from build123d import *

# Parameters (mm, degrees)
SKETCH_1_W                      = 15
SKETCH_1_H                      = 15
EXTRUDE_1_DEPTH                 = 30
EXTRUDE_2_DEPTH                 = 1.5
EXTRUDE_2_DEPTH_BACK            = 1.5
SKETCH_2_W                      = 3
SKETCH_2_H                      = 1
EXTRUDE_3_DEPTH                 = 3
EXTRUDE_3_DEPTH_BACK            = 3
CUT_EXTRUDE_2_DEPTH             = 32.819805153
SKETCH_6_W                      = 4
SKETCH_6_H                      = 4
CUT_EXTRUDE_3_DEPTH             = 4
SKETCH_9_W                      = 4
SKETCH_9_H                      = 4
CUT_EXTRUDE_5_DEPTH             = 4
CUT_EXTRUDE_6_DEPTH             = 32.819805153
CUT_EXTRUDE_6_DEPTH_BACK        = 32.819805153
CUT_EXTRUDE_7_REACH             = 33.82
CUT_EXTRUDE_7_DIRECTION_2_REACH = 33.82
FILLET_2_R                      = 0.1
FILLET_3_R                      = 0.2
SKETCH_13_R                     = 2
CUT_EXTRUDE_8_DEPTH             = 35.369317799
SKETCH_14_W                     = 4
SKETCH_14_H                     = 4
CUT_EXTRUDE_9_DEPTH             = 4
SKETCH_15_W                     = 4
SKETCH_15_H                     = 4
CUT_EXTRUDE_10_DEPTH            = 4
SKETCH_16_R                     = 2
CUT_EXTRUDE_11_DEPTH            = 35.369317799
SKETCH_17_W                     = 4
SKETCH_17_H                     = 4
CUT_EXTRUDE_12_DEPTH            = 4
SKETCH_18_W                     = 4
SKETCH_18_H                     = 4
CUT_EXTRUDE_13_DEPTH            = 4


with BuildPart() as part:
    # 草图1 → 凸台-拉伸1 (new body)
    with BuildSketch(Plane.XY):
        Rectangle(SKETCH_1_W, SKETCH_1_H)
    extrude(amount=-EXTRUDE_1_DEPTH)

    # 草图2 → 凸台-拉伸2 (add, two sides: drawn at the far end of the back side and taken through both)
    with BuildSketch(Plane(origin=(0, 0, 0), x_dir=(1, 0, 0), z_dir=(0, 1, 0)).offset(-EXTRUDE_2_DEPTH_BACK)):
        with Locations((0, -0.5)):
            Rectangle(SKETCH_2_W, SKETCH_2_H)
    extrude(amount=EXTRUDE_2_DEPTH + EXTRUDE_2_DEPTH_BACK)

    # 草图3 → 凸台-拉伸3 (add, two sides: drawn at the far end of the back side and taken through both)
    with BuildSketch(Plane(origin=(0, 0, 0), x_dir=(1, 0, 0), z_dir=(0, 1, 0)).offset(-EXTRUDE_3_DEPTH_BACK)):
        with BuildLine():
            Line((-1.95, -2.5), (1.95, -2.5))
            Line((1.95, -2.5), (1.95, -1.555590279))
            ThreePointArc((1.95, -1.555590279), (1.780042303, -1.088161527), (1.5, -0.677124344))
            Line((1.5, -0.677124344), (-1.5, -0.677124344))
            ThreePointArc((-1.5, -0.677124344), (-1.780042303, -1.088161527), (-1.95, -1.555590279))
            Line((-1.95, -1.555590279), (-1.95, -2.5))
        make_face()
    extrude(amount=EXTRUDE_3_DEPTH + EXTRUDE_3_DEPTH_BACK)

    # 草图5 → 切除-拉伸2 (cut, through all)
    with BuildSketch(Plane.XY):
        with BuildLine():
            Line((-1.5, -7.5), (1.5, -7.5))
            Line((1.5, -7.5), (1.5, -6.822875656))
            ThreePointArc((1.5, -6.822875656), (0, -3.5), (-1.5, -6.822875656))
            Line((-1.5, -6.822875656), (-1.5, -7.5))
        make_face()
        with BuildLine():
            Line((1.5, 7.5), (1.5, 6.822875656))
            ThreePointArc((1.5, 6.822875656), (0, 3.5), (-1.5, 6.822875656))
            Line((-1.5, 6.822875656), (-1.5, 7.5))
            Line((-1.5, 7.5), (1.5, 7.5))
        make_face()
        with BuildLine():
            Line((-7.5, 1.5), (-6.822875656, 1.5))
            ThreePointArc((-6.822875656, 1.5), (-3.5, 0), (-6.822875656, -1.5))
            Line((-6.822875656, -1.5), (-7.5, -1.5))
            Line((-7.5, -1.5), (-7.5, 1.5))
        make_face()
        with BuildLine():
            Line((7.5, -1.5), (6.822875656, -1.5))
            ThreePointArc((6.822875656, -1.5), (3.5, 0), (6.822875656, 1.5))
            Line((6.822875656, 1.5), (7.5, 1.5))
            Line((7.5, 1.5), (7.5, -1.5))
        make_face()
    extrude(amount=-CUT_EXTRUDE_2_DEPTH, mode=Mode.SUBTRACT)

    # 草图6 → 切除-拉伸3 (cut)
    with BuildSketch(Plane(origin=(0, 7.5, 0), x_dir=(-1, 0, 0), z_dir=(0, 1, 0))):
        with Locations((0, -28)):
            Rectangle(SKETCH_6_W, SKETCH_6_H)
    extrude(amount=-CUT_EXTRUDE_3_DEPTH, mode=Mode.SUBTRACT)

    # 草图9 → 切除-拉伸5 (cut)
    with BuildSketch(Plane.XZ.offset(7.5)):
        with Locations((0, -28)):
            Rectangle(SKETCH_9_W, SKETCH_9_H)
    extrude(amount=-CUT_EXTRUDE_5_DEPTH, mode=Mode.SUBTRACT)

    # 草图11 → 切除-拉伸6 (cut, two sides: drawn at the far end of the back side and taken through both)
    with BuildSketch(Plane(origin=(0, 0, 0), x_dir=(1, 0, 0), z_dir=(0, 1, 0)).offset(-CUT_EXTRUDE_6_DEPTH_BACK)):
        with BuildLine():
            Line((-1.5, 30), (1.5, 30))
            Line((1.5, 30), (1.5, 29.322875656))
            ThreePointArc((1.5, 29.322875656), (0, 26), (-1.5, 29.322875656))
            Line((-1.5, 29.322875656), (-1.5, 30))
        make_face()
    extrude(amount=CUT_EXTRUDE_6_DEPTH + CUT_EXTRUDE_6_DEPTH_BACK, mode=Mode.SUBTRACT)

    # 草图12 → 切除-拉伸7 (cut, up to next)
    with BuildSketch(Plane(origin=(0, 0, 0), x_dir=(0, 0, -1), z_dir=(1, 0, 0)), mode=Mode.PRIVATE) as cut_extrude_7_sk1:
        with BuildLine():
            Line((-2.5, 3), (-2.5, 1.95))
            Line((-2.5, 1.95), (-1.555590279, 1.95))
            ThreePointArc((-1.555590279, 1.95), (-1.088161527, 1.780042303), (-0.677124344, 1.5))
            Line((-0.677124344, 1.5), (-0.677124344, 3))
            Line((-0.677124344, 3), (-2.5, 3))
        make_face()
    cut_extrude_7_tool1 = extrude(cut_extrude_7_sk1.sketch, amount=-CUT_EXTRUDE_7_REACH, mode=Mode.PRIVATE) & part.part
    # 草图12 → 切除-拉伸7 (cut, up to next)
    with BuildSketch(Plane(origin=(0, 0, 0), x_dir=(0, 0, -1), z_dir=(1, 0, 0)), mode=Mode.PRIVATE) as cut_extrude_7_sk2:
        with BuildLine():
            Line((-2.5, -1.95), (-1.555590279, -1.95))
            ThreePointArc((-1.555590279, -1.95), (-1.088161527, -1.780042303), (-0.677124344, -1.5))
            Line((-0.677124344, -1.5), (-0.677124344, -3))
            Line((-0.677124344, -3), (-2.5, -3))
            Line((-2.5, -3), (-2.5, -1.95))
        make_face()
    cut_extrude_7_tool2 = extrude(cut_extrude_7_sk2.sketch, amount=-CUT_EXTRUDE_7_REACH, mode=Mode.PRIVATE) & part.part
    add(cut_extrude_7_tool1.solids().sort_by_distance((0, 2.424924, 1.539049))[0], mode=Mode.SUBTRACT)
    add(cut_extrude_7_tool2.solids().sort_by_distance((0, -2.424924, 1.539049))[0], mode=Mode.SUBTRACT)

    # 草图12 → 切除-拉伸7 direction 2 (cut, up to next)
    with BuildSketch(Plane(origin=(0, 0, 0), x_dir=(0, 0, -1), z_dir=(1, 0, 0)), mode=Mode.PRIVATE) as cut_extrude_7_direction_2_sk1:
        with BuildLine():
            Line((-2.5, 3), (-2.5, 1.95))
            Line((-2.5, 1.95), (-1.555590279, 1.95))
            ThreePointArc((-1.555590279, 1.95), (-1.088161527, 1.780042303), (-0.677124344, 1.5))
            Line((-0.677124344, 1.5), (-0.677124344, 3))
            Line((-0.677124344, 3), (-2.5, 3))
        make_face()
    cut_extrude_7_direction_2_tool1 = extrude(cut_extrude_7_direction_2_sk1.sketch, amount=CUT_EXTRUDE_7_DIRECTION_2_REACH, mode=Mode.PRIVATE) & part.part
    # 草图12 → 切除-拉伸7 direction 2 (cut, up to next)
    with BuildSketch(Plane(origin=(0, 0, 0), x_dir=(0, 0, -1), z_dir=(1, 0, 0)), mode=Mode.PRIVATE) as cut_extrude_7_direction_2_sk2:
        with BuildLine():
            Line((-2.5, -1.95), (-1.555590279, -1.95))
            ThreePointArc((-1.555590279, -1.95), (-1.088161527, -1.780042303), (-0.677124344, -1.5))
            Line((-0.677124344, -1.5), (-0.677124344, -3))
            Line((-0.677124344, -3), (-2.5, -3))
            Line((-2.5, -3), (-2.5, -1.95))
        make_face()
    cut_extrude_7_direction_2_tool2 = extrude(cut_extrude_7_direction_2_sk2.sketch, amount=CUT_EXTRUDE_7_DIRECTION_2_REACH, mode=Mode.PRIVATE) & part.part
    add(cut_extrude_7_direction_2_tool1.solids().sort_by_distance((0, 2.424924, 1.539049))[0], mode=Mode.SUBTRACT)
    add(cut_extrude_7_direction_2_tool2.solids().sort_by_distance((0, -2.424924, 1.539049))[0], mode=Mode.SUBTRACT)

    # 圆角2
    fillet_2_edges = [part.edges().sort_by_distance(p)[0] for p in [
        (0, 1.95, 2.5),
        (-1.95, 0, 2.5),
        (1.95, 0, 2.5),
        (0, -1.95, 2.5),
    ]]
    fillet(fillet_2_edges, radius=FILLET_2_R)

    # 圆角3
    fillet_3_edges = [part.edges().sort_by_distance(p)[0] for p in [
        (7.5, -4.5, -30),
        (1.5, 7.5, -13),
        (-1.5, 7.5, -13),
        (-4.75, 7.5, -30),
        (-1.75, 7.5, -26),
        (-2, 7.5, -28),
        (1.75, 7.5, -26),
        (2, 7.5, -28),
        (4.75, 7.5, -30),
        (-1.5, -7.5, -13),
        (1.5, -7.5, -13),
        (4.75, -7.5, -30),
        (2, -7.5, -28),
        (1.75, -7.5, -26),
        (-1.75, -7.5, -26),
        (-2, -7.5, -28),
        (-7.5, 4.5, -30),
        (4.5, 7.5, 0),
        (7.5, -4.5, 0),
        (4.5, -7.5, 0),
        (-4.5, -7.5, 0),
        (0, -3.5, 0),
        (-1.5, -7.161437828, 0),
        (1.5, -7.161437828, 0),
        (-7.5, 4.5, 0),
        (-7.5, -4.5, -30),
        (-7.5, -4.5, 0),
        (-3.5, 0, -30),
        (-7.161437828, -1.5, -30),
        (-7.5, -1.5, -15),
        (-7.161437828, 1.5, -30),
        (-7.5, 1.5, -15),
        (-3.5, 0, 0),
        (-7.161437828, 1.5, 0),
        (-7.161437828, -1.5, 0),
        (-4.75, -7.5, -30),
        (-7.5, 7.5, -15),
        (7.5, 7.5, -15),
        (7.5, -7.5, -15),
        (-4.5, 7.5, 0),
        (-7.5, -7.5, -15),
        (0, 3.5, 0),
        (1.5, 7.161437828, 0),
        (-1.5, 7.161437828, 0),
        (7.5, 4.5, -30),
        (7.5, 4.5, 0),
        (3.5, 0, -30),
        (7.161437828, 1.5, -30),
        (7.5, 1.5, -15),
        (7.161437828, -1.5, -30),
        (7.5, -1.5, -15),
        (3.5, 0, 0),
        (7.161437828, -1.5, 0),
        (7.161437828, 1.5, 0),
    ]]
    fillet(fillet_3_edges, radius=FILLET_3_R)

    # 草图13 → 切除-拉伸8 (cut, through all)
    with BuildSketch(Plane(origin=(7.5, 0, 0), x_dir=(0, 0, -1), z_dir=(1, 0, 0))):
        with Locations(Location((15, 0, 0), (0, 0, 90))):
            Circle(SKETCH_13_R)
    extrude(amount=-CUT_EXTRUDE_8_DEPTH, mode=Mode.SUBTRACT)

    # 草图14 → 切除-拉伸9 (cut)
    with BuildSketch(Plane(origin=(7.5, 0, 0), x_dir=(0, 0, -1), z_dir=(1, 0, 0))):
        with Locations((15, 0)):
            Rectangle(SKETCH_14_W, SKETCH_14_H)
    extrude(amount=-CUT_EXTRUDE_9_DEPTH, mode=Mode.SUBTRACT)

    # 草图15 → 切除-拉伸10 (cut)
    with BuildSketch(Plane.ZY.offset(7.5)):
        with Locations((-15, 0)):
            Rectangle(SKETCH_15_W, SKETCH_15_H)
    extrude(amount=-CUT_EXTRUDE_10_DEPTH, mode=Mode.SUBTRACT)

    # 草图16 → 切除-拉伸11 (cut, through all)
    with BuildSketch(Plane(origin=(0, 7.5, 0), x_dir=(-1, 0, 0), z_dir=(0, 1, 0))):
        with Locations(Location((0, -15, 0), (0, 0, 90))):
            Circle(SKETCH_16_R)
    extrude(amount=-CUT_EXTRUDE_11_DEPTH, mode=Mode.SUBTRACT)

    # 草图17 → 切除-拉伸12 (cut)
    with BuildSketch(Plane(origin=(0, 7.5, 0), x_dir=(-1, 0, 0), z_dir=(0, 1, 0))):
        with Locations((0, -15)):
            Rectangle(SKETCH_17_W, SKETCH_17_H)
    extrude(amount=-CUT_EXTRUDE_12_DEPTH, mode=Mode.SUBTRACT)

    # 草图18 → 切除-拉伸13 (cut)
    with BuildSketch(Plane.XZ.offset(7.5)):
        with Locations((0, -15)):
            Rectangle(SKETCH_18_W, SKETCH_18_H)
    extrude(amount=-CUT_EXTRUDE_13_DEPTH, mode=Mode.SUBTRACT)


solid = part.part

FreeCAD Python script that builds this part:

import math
import FreeCAD as App
import Part
import Sketcher

V = App.Vector
Q = App.Units.Quantity


def edges_at(feature, points):
    """Names of the edges that pass closest to the given points."""
    edges = feature.Shape.Edges
    near = lambda p: min(range(len(edges)), key=lambda i: edges[i].distToShape(Part.Vertex(*p))[0])
    return sorted({f"Edge{near(p) + 1}" for p in points})

doc = App.newDocument("Part")
body = doc.addObject("PartDesign::Body", "Body")

sketch1 = body.newObject("Sketcher::SketchObject", "Sketch")
sketch1.AttachmentSupport = (doc.getObject("XY_Plane"), [""])
sketch1.MapMode = "FlatFace"
sketch1.addGeometry([
    Part.LineSegment(V(-8, 8, 0), V(-8, -8, 0)),
    Part.LineSegment(V(-8, -8, 0), V(8, -8, 0)),
    Part.LineSegment(V(8, -8, 0), V(8, 8, 0)),
    Part.LineSegment(V(8, 8, 0), V(-8, 8, 0)),
], False)
sketch1.addConstraint([
    Sketcher.Constraint("Coincident", 0, 2, 1, 1),
    Sketcher.Constraint("Coincident", 1, 2, 2, 1),
    Sketcher.Constraint("Coincident", 2, 2, 3, 1),
    Sketcher.Constraint("Coincident", 3, 2, 0, 1),
    Sketcher.Constraint("Vertical", 0),
    Sketcher.Constraint("Horizontal", 1),
    Sketcher.Constraint("Vertical", 2),
    Sketcher.Constraint("Horizontal", 3),
    Sketcher.Constraint("Symmetric", 0, 2, 2, 2, -1, 1),
    Sketcher.Constraint("Equal", 3, 0),
    Sketcher.Constraint("DistanceX", 1, 1, 1, 2, Q("15 mm")),
])
pad1 = body.newObject("PartDesign::Pad", "Pad")
pad1.Profile = sketch1
pad1.Length = 30
pad1.Reversed = True

sketch2 = body.newObject("Sketcher::SketchObject", "Sketch001")
sketch2.AttachmentSupport = (doc.getObject("XZ_Plane"), [""])
sketch2.MapMode = "FlatFace"
sketch2.addGeometry([
    Part.LineSegment(V(-1.5, 0, 0), V(-1.5, 1, 0)),
    Part.LineSegment(V(-1.5, 1, 0), V(1.5, 1, 0)),
    Part.LineSegment(V(1.5, 1, 0), V(1.5, 0, 0)),
    Part.LineSegment(V(1.5, 0, 0), V(-1.5, 0, 0)),
], False)
sketch2.addConstraint([
    Sketcher.Constraint("Coincident", 0, 2, 1, 1),
    Sketcher.Constraint("Coincident", 1, 2, 2, 1),
    Sketcher.Constraint("Coincident", 2, 2, 3, 1),
    Sketcher.Constraint("Coincident", 3, 2, 0, 1),
    Sketcher.Constraint("Vertical", 0),
    Sketcher.Constraint("Horizontal", 1),
    Sketcher.Constraint("Vertical", 2),
    Sketcher.Constraint("Horizontal", 3),
    Sketcher.Constraint("Symmetric", 2, 2, 3, 2, -1, 1),
    Sketcher.Constraint("DistanceX", 1, 1, 1, 2, Q("3 mm")),
    Sketcher.Constraint("DistanceY", 0, 1, 0, 2, Q("1 mm")),
])
pad2 = body.newObject("PartDesign::Pad", "Pad001")
pad2.Profile = sketch2
pad2.Type = "TwoLengths"
pad2.Length = 1.5
pad2.Length2 = 1.5
pad2.Reversed = True

sketch3 = body.newObject("Sketcher::SketchObject", "Sketch002")
sketch3.AttachmentSupport = (doc.getObject("XZ_Plane"), [""])
sketch3.MapMode = "FlatFace"
sketch3.addGeometry([
    Part.LineSegment(V(-1.9, 2.5, 0), V(1.9, 2.5, 0)),
    Part.LineSegment(V(1.9, 2.5, 0), V(1.9, 1.6, 0)),
    Part.ArcOfCircle(Part.Circle(V(0, 2, 0), V(0, 0, 1), 2), math.radians(-41), math.radians(-13)),
    Part.LineSegment(V(1.5, 0.7, 0), V(-1.5, 0.7, 0)),
    Part.ArcOfCircle(Part.Circle(V(0, 2, 0), V(0, 0, 1), 2), math.radians(-167), math.radians(-139)),
    Part.LineSegment(V(-1.9, 1.6, 0), V(-1.9, 2.5, 0)),
], False)
sketch3.addConstraint([
    Sketcher.Constraint("Coincident", 0, 2, 1, 1),
    Sketcher.Constraint("Coincident", 1, 2, 2, 2),
    Sketcher.Constraint("Coincident", 2, 1, 3, 1),
    Sketcher.Constraint("Coincident", 3, 2, 4, 2),
    Sketcher.Constraint("Coincident", 4, 1, 5, 1),
    Sketcher.Constraint("Coincident", 5, 2, 0, 1),
    Sketcher.Constraint("Horizontal", 0),
    Sketcher.Constraint("Vertical", 1),
    Sketcher.Constraint("Horizontal", 3),
    Sketcher.Constraint("Vertical", 5),
    Sketcher.Constraint("Coincident", 4, 3, 2, 3),
    Sketcher.Constraint("Equal", 2, 4),
    Sketcher.Constraint("Symmetric", 1, 2, 4, 1, -2),
    Sketcher.Constraint("Radius", 2, Q("2 mm")),
    Sketcher.Constraint("DistanceX", 3, 2, 3, 1, Q("3 mm")),
    Sketcher.Constraint("DistanceX", 0, 1, 0, 2, Q("3.9 mm")),
    Sketcher.Constraint("DistanceY", -1, 1, 2, 3, Q("2 mm")),
    Sketcher.Constraint("DistanceY", -1, 1, 0, 2, Q("2.5 mm")),
])
pad3 = body.newObject("PartDesign::Pad", "Pad002")
pad3.Profile = sketch3
pad3.Type = "TwoLengths"
pad3.Length = 3
pad3.Length2 = 3
pad3.Reversed = True

sketch4 = body.newObject("Sketcher::SketchObject", "Sketch003")
sketch4.AttachmentSupport = (doc.getObject("XY_Plane"), [""])
sketch4.MapMode = "FlatFace"
sketch4.addGeometry([
    Part.LineSegment(V(-1.5, -7.5, 0), V(1.5, -7.5, 0)),
    Part.LineSegment(V(1.5, -7.5, 0), V(1.5, -6.8, 0)),
    Part.ArcOfCircle(Part.Circle(V(0, -5.5, 0), V(0, 0, 1), 2), math.radians(-41), math.radians(221)),
    Part.LineSegment(V(-1.5, -6.8, 0), V(-1.5, -7.5, 0)),
    Part.LineSegment(V(1.5, 6.8, 0), V(1.5, 7.5, 0)),
    Part.LineSegment(V(1.5, 7.5, 0), V(-1.5, 7.5, 0)),
    Part.LineSegment(V(-1.5, 7.5, 0), V(-1.5, 6.8, 0)),
    Part.ArcOfCircle(Part.Circle(V(0, 5.5, 0), V(0, 0, 1), 2), math.radians(139), math.radians(401)),
    Part.LineSegment(V(-6.8, 1.5, 0), V(-7.5, 1.5, 0)),
    Part.LineSegment(V(-7.5, 1.5, 0), V(-7.5, -1.5, 0)),
    Part.LineSegment(V(-7.5, -1.5, 0), V(-6.8, -1.5, 0)),
    Part.ArcOfCircle(Part.Circle(V(-5.5, 0, 0), V(0, 0, 1), 2), math.radians(-131), math.radians(131)),
    Part.LineSegment(V(6.8, -1.5, 0), V(7.5, -1.5, 0)),
    Part.LineSegment(V(7.5, -1.5, 0), V(7.5, 1.5, 0)),
    Part.LineSegment(V(7.5, 1.5, 0), V(6.8, 1.5, 0)),
    Part.ArcOfCircle(Part.Circle(V(5.5, 0, 0), V(0, 0, 1), 2), math.radians(49), math.radians(311)),
], False)
sketch4.addConstraint([
    Sketcher.Constraint("Coincident", 0, 2, 1, 1),
    Sketcher.Constraint("Coincident", 1, 2, 2, 1),
    Sketcher.Constraint("Coincident", 2, 2, 3, 1),
    Sketcher.Constraint("Coincident", 3, 2, 0, 1),
    Sketcher.Constraint("Coincident", 4, 2, 5, 1),
    Sketcher.Constraint("Coincident", 5, 2, 6, 1),
    Sketcher.Constraint("Coincident", 6, 2, 7, 1),
    Sketcher.Constraint("Coincident", 7, 2, 4, 1),
    Sketcher.Constraint("Coincident", 8, 2, 9, 1),
    Sketcher.Constraint("Coincident", 9, 2, 10, 1),
    Sketcher.Constraint("Coincident", 10, 2, 11, 1),
    Sketcher.Constraint("Coincident", 11, 2, 8, 1),
    Sketcher.Constraint("Coincident", 12, 2, 13, 1),
    Sketcher.Constraint("Coincident", 13, 2, 14, 1),
    Sketcher.Constraint("Coincident", 14, 2, 15, 1),
    Sketcher.Constraint("Coincident", 15, 2, 12, 1),
    Sketcher.Constraint("Horizontal", 0),
    Sketcher.Constraint("Vertical", 1),
    Sketcher.Constraint("Vertical", 3),
    Sketcher.Constraint("Vertical", 4),
    Sketcher.Constraint("Horizontal", 5),
    Sketcher.Constraint("Vertical", 6),
    Sketcher.Constraint("Horizontal", 8),
    Sketcher.Constraint("Vertical", 9),
    Sketcher.Constraint("Horizontal", 10),
    Sketcher.Constraint("Horizontal", 12),
    Sketcher.Constraint("Vertical", 13),
    Sketcher.Constraint("Horizontal", 14),
    Sketcher.Constraint("Equal", 2, 7),
    Sketcher.Constraint("Equal", 7, 11),
    Sketcher.Constraint("Equal", 11, 15),
    Sketcher.Constraint("Symmetric", 2, 3, 7, 3, -1, 1),
    Sketcher.Constraint("Symmetric", 11, 3, 15, 3, -1, 1),
    Sketcher.Constraint("Symmetric", 3, 2, 4, 2, -1, 1),
    Sketcher.Constraint("Symmetric", 8, 2, 12, 2, -1, 1),
    Sketcher.Constraint("Symmetric", 1, 2, 2, 2, -2),
    Sketcher.Constraint("Symmetric", 11, 2, 14, 2, -2),
    Sketcher.Constraint("Horizontal", 6, 2, 7, 2),
    Sketcher.Constraint("Horizontal", 10, 2, 12, 2),
    Sketcher.Constraint("Equal", 14, 1),
    Sketcher.Constraint("Equal", 5, 9),
    Sketcher.Constraint("Radius", 2, Q("2 mm")),
    Sketcher.Constraint("DistanceX", 0, 1, 0, 2, Q("3 mm")),
    Sketcher.Constraint("DistanceY", 2, 3, 7, 3, Q("11 mm")),
    Sketcher.Constraint("DistanceX", 11, 3, 15, 3, Q("11 mm")),
    Sketcher.Constraint("DistanceY", 0, 2, 2, 3, Q("2 mm")),
])
pocket1 = body.newObject("PartDesign::Pocket", "Pocket")
pocket1.Profile = sketch4
pocket1.Type = "ThroughAll"

sketch5 = body.newObject("Sketcher::SketchObject", "Sketch004")
sketch5.AttachmentSupport = (doc.getObject("XZ_Plane"), [""])
sketch5.MapMode = "FlatFace"
sketch5.AttachmentOffset = App.Placement(V(0, 0, -7.5), App.Rotation())
sketch5.addGeometry([
    Part.LineSegment(V(2, -26, 0), V(2, -30, 0)),
    Part.LineSegment(V(2, -30, 0), V(-2, -30, 0)),
    Part.LineSegment(V(-2, -30, 0), V(-2, -26, 0)),
    Part.LineSegment(V(-2, -26, 0), V(2, -26, 0)),
], False)
sketch5.addConstraint([
    Sketcher.Constraint("Coincident", 0, 2, 1, 1),
    Sketcher.Constraint("Coincident", 1, 2, 2, 1),
    Sketcher.Constraint("Coincident", 2, 2, 3, 1),
    Sketcher.Constraint("Coincident", 3, 2, 0, 1),
    Sketcher.Constraint("Vertical", 0),
    Sketcher.Constraint("Horizontal", 1),
    Sketcher.Constraint("Vertical", 2),
    Sketcher.Constraint("Horizontal", 3),
    Sketcher.Constraint("Equal", 3, 0),
    Sketcher.Constraint("DistanceX", 1, 2, 1, 1, Q("4 mm")),
    Sketcher.Constraint("DistanceX", -1, 1, 0, 2, Q("2 mm")),
    Sketcher.Constraint("DistanceY", 0, 2, -1, 1, Q("30 mm")),
])
pocket2 = body.newObject("PartDesign::Pocket", "Pocket001")
pocket2.Profile = sketch5
pocket2.Length = 4
pocket2.Reversed = True

sketch6 = body.newObject("Sketcher::SketchObject", "Sketch005")
sketch6.AttachmentSupport = (doc.getObject("XZ_Plane"), [""])
sketch6.MapMode = "FlatFace"
sketch6.AttachmentOffset = App.Placement(V(0, 0, 7.5), App.Rotation())
sketch6.addGeometry([
    Part.LineSegment(V(-2, -26, 0), V(-2, -30, 0)),
    Part.LineSegment(V(-2, -30, 0), V(2, -30, 0)),
    Part.LineSegment(V(2, -30, 0), V(2, -26, 0)),
    Part.LineSegment(V(2, -26, 0), V(-2, -26, 0)),
], False)
sketch6.addConstraint([
    Sketcher.Constraint("Coincident", 0, 2, 1, 1),
    Sketcher.Constraint("Coincident", 1, 2, 2, 1),
    Sketcher.Constraint("Coincident", 2, 2, 3, 1),
    Sketcher.Constraint("Coincident", 3, 2, 0, 1),
    Sketcher.Constraint("Vertical", 0),
    Sketcher.Constraint("Horizontal", 1),
    Sketcher.Constraint("Vertical", 2),
    Sketcher.Constraint("Horizontal", 3),
    Sketcher.Constraint("Equal", 3, 0),
    Sketcher.Constraint("DistanceX", 1, 1, 1, 2, Q("4 mm")),
    Sketcher.Constraint("DistanceX", 0, 2, -1, 1, Q("2 mm")),
    Sketcher.Constraint("DistanceY", 0, 2, -1, 1, Q("30 mm")),
])
pocket3 = body.newObject("PartDesign::Pocket", "Pocket002")
pocket3.Profile = sketch6
pocket3.Length = 4

sketch7 = body.newObject("Sketcher::SketchObject", "Sketch006")
sketch7.AttachmentSupport = (doc.getObject("XZ_Plane"), [""])
sketch7.MapMode = "FlatFace"
sketch7.addGeometry([
    Part.LineSegment(V(1.5, -30, 0), V(-1.5, -30, 0)),
    Part.LineSegment(V(-1.5, -30, 0), V(-1.5, -29.3, 0)),
    Part.ArcOfCircle(Part.Circle(V(0, -28, 0), V(0, 0, 1), 2), math.radians(-41), math.radians(221)),
    Part.LineSegment(V(1.5, -29.3, 0), V(1.5, -30, 0)),
], False)
sketch7.addConstraint([
    Sketcher.Constraint("Coincident", 0, 2, 1, 1),
    Sketcher.Constraint("Coincident", 1, 2, 2, 2),
    Sketcher.Constraint("Coincident", 2, 1, 3, 1),
    Sketcher.Constraint("Coincident", 3, 2, 0, 1),
    Sketcher.Constraint("Horizontal", 0),
    Sketcher.Constraint("Vertical", 1),
    Sketcher.Constraint("Vertical", 3),
    Sketcher.Constraint("Symmetric", 1, 2, 2, 1, -2),
    Sketcher.Constraint("Radius", 2, Q("2 mm")),
    Sketcher.Constraint("DistanceX", 0, 2, 0, 1, Q("3 mm")),
    Sketcher.Constraint("DistanceY", 2, 3, -1, 1, Q("28 mm")),
    Sketcher.Constraint("DistanceY", 0, 2, -1, 1, Q("30 mm")),
])
pocket4 = body.newObject("PartDesign::Pocket", "Pocket003")
pocket4.Profile = sketch7
pocket4.Type = "ThroughAll"
pocket4.Midplane = True

sketch8 = body.newObject("Sketcher::SketchObject", "Sketch007")
sketch8.AttachmentSupport = (doc.getObject("YZ_Plane"), [""])
sketch8.MapMode = "FlatFace"
sketch8.addGeometry([
    Part.LineSegment(V(3, 2.5, 0), V(1.9, 2.5, 0)),
    Part.LineSegment(V(1.9, 2.5, 0), V(1.9, 1.6, 0)),
    Part.ArcOfCircle(Part.Circle(V(0, 2, 0), V(0, 0, 1), 2), math.radians(-41), math.radians(-13)),
    Part.LineSegment(V(1.5, 0.7, 0), V(3, 0.7, 0)),
    Part.LineSegment(V(3, 0.7, 0), V(3, 2.5, 0)),
], False)
sketch8.addConstraint([
    Sketcher.Constraint("Coincident", 0, 2, 1, 1),
    Sketcher.Constraint("Coincident", 1, 2, 2, 2),
    Sketcher.Constraint("Coincident", 2, 1, 3, 1),
    Sketcher.Constraint("Coincident", 3, 2, 4, 1),
    Sketcher.Constraint("Coincident", 4, 2, 0, 1),
    Sketcher.Constraint("Horizontal", 0),
    Sketcher.Constraint("Vertical", 1),
    Sketcher.Constraint("Horizontal", 3),
    Sketcher.Constraint("Vertical", 4),
    Sketcher.Constraint("PointOnObject", 2, 3, -2),
    Sketcher.Constraint("Radius", 2, Q("2 mm")),
    Sketcher.Constraint("DistanceX", 3, 1, 3, 2, Q("1.5 mm")),
    Sketcher.Constraint("DistanceY", -1, 1, 2, 3, Q("2 mm")),
    Sketcher.Constraint("DistanceX", -1, 1, 3, 2, Q("3 mm")),
    Sketcher.Constraint("DistanceX", 0, 2, 0, 1, Q("1.05 mm")),
    Sketcher.Constraint("DistanceY", -1, 1, 0, 2, Q("2.5 mm")),
])
pocket5 = body.newObject("PartDesign::Pocket", "Pocket004")
pocket5.Profile = sketch8
pocket5.Type = "UpToFirst"

sketch9 = body.newObject("Sketcher::SketchObject", "Sketch008")
sketch9.AttachmentSupport = (doc.getObject("YZ_Plane"), [""])
sketch9.MapMode = "FlatFace"
sketch9.addGeometry([
    Part.LineSegment(V(-1.9, 1.6, 0), V(-1.9, 2.5, 0)),
    Part.LineSegment(V(-1.9, 2.5, 0), V(-3, 2.5, 0)),
    Part.LineSegment(V(-3, 2.5, 0), V(-3, 0.7, 0)),
    Part.LineSegment(V(-3, 0.7, 0), V(-1.5, 0.7, 0)),
    Part.ArcOfCircle(Part.Circle(V(0, 2, 0), V(0, 0, 1), 2), math.radians(-167), math.radians(-139)),
], False)
sketch9.addConstraint([
    Sketcher.Constraint("Coincident", 0, 2, 1, 1),
    Sketcher.Constraint("Coincident", 1, 2, 2, 1),
    Sketcher.Constraint("Coincident", 2, 2, 3, 1),
    Sketcher.Constraint("Coincident", 3, 2, 4, 2),
    Sketcher.Constraint("Coincident", 4, 1, 0, 1),
    Sketcher.Constraint("Vertical", 0),
    Sketcher.Constraint("Horizontal", 1),
    Sketcher.Constraint("Vertical", 2),
    Sketcher.Constraint("Horizontal", 3),
    Sketcher.Constraint("PointOnObject", 4, 3, -2),
    Sketcher.Constraint("Radius", 4, Q("2 mm")),
    Sketcher.Constraint("DistanceX", 3, 1, 3, 2, Q("1.5 mm")),
    Sketcher.Constraint("DistanceY", -1, 1, 4, 3, Q("2 mm")),
    Sketcher.Constraint("DistanceX", 1, 2, -1, 1, Q("3 mm")),
    Sketcher.Constraint("DistanceX", 1, 2, 1, 1, Q("1.05 mm")),
    Sketcher.Constraint("DistanceY", -1, 1, 0, 2, Q("2.5 mm")),
])
pocket6 = body.newObject("PartDesign::Pocket", "Pocket005")
pocket6.Profile = sketch9
pocket6.Type = "UpToFirst"

sketch10 = body.newObject("Sketcher::SketchObject", "Sketch009")
sketch10.AttachmentSupport = (doc.getObject("YZ_Plane"), [""])
sketch10.MapMode = "FlatFace"
sketch10.addGeometry([
    Part.LineSegment(V(3, 2.5, 0), V(1.9, 2.5, 0)),
    Part.LineSegment(V(1.9, 2.5, 0), V(1.9, 1.6, 0)),
    Part.ArcOfCircle(Part.Circle(V(0, 2, 0), V(0, 0, 1), 2), math.radians(-41), math.radians(-13)),
    Part.LineSegment(V(1.5, 0.7, 0), V(3, 0.7, 0)),
    Part.LineSegment(V(3, 0.7, 0), V(3, 2.5, 0)),
], False)
sketch10.addConstraint([
    Sketcher.Constraint("Coincident", 0, 2, 1, 1),
    Sketcher.Constraint("Coincident", 1, 2, 2, 2),
    Sketcher.Constraint("Coincident", 2, 1, 3, 1),
    Sketcher.Constraint("Coincident", 3, 2, 4, 1),
    Sketcher.Constraint("Coincident", 4, 2, 0, 1),
    Sketcher.Constraint("Horizontal", 0),
    Sketcher.Constraint("Vertical", 1),
    Sketcher.Constraint("Horizontal", 3),
    Sketcher.Constraint("Vertical", 4),
    Sketcher.Constraint("PointOnObject", 2, 3, -2),
    Sketcher.Constraint("Radius", 2, Q("2 mm")),
    Sketcher.Constraint("DistanceX", 3, 1, 3, 2, Q("1.5 mm")),
    Sketcher.Constraint("DistanceY", -1, 1, 2, 3, Q("2 mm")),
    Sketcher.Constraint("DistanceX", -1, 1, 3, 2, Q("3 mm")),
    Sketcher.Constraint("DistanceX", 0, 2, 0, 1, Q("1.05 mm")),
    Sketcher.Constraint("DistanceY", -1, 1, 0, 2, Q("2.5 mm")),
])
pocket7 = body.newObject("PartDesign::Pocket", "Pocket006")
pocket7.Profile = sketch10
pocket7.Type = "UpToFirst"
pocket7.Reversed = True

sketch11 = body.newObject("Sketcher::SketchObject", "Sketch010")
sketch11.AttachmentSupport = (doc.getObject("YZ_Plane"), [""])
sketch11.MapMode = "FlatFace"
sketch11.addGeometry([
    Part.LineSegment(V(-1.9, 1.6, 0), V(-1.9, 2.5, 0)),
    Part.LineSegment(V(-1.9, 2.5, 0), V(-3, 2.5, 0)),
    Part.LineSegment(V(-3, 2.5, 0), V(-3, 0.7, 0)),
    Part.LineSegment(V(-3, 0.7, 0), V(-1.5, 0.7, 0)),
    Part.ArcOfCircle(Part.Circle(V(0, 2, 0), V(0, 0, 1), 2), math.radians(-167), math.radians(-139)),
], False)
sketch11.addConstraint([
    Sketcher.Constraint("Coincident", 0, 2, 1, 1),
    Sketcher.Constraint("Coincident", 1, 2, 2, 1),
    Sketcher.Constraint("Coincident", 2, 2, 3, 1),
    Sketcher.Constraint("Coincident", 3, 2, 4, 2),
    Sketcher.Constraint("Coincident", 4, 1, 0, 1),
    Sketcher.Constraint("Vertical", 0),
    Sketcher.Constraint("Horizontal", 1),
    Sketcher.Constraint("Vertical", 2),
    Sketcher.Constraint("Horizontal", 3),
    Sketcher.Constraint("PointOnObject", 4, 3, -2),
    Sketcher.Constraint("Radius", 4, Q("2 mm")),
    Sketcher.Constraint("DistanceX", 3, 1, 3, 2, Q("1.5 mm")),
    Sketcher.Constraint("DistanceY", -1, 1, 4, 3, Q("2 mm")),
    Sketcher.Constraint("DistanceX", 1, 2, -1, 1, Q("3 mm")),
    Sketcher.Constraint("DistanceX", 1, 2, 1, 1, Q("1.05 mm")),
    Sketcher.Constraint("DistanceY", -1, 1, 0, 2, Q("2.5 mm")),
])
pocket8 = body.newObject("PartDesign::Pocket", "Pocket007")
pocket8.Profile = sketch11
pocket8.Type = "UpToFirst"
pocket8.Reversed = True
doc.recompute()

fillet = body.newObject("PartDesign::Fillet", "Fillet")
fillet.Base = (pocket8, edges_at(pocket8, [
    (0, 1.95, 2.5),
    (-1.95, 0, 2.5),
    (1.95, 0, 2.5),
    (0, -1.95, 2.5),
]))
fillet.Radius = 0.1
doc.recompute()

fillet2 = body.newObject("PartDesign::Fillet", "Fillet001")
fillet2.Base = (fillet, edges_at(fillet, [
    (7.5, -4.5, -30),
    (1.5, 7.5, -13),
    (-1.5, 7.5, -13),
    (-4.75, 7.5, -30),
    (-1.75, 7.5, -26),
    (-2, 7.5, -28),
    (1.75, 7.5, -26),
    (2, 7.5, -28),
    (4.75, 7.5, -30),
    (-1.5, -7.5, -13),
    (1.5, -7.5, -13),
    (4.75, -7.5, -30),
    (2, -7.5, -28),
    (1.75, -7.5, -26),
    (-1.75, -7.5, -26),
    (-2, -7.5, -28),
    (-7.5, 4.5, -30),
    (4.5, 7.5, 0),
    (7.5, -4.5, 0),
    (4.5, -7.5, 0),
    (-4.5, -7.5, 0),
    (0, -3.5, 0),
    (-1.5, -7.161, 0),
    (1.5, -7.161, 0),
    (-7.5, 4.5, 0),
    (-7.5, -4.5, -30),
    (-7.5, -4.5, 0),
    (-3.5, 0, -30),
    (-7.161, -1.5, -30),
    (-7.5, -1.5, -15),
    (-7.161, 1.5, -30),
    (-7.5, 1.5, -15),
    (-3.5, 0, 0),
    (-7.161, 1.5, 0),
    (-7.161, -1.5, 0),
    (-4.75, -7.5, -30),
    (-7.5, 7.5, -15),
    (7.5, 7.5, -15),
    (7.5, -7.5, -15),
    (-4.5, 7.5, 0),
    (-7.5, -7.5, -15),
    (0, 3.5, 0),
    (1.5, 7.161, 0),
    (-1.5, 7.161, 0),
    (7.5, 4.5, -30),
    (7.5, 4.5, 0),
    (3.5, 0, -30),
    (7.161, 1.5, -30),
    (7.5, 1.5, -15),
    (7.161, -1.5, -30),
    (7.5, -1.5, -15),
    (3.5, 0, 0),
    (7.161, -1.5, 0),
    (7.161, 1.5, 0),
]))
fillet2.Radius = 0.2

sketch12 = body.newObject("Sketcher::SketchObject", "Sketch011")
sketch12.AttachmentSupport = (doc.getObject("YZ_Plane"), [""])
sketch12.MapMode = "FlatFace"
sketch12.AttachmentOffset = App.Placement(V(0, 0, 7.5), App.Rotation())
sketch12.addGeometry(Part.Circle(V(0, -15, 0), V(0, 0, 1), 2), False)
sketch12.addConstraint([
    Sketcher.Constraint("PointOnObject", 0, 3, -2),
    Sketcher.Constraint("Diameter", 0, Q("4 mm")),
    Sketcher.Constraint("DistanceY", 0, 3, -1, 1, Q("15 mm")),
])
pocket9 = body.newObject("PartDesign::Pocket", "Pocket008")
pocket9.Profile = sketch12
pocket9.Type = "ThroughAll"

sketch13 = body.newObject("Sketcher::SketchObject", "Sketch012")
sketch13.AttachmentSupport = (doc.getObject("YZ_Plane"), [""])
sketch13.MapMode = "FlatFace"
sketch13.AttachmentOffset = App.Placement(V(0, 0, 7.5), App.Rotation())
sketch13.addGeometry([
    Part.LineSegment(V(2, -13, 0), V(-2, -13, 0)),
    Part.LineSegment(V(-2, -13, 0), V(-2, -17, 0)),
    Part.LineSegment(V(-2, -17, 0), V(2, -17, 0)),
    Part.LineSegment(V(2, -17, 0), V(2, -13, 0)),
], False)
sketch13.addConstraint([
    Sketcher.Constraint("Coincident", 0, 2, 1, 1),
    Sketcher.Constraint("Coincident", 1, 2, 2, 1),
    Sketcher.Constraint("Coincident", 2, 2, 3, 1),
    Sketcher.Constraint("Coincident", 3, 2, 0, 1),
    Sketcher.Constraint("Horizontal", 0),
    Sketcher.Constraint("Vertical", 1),
    Sketcher.Constraint("Horizontal", 2),
    Sketcher.Constraint("Vertical", 3),
    Sketcher.Constraint("Equal", 2, 1),
    Sketcher.Constraint("DistanceX", 0, 2, 0, 1, Q("4 mm")),
    Sketcher.Constraint("DistanceX", 0, 2, -1, 1, Q("2 mm")),
    Sketcher.Constraint("DistanceY", 0, 2, -1, 1, Q("13 mm")),
])
pocket10 = body.newObject("PartDesign::Pocket", "Pocket009")
pocket10.Profile = sketch13
pocket10.Length = 4

sketch14 = body.newObject("Sketcher::SketchObject", "Sketch013")
sketch14.AttachmentSupport = (doc.getObject("YZ_Plane"), [""])
sketch14.MapMode = "FlatFace"
sketch14.AttachmentOffset = App.Placement(V(0, 0, -7.5), App.Rotation())
sketch14.addGeometry([
    Part.LineSegment(V(2, -17, 0), V(-2, -17, 0)),
    Part.LineSegment(V(-2, -17, 0), V(-2, -13, 0)),
    Part.LineSegment(V(-2, -13, 0), V(2, -13, 0)),
    Part.LineSegment(V(2, -13, 0), V(2, -17, 0)),
], False)
sketch14.addConstraint([
    Sketcher.Constraint("Coincident", 0, 2, 1, 1),
    Sketcher.Constraint("Coincident", 1, 2, 2, 1),
    Sketcher.Constraint("Coincident", 2, 2, 3, 1),
    Sketcher.Constraint("Coincident", 3, 2, 0, 1),
    Sketcher.Constraint("Horizontal", 0),
    Sketcher.Constraint("Vertical", 1),
    Sketcher.Constraint("Horizontal", 2),
    Sketcher.Constraint("Vertical", 3),
    Sketcher.Constraint("Equal", 2, 1),
    Sketcher.Constraint("DistanceX", 0, 2, 0, 1, Q("4 mm")),
    Sketcher.Constraint("DistanceX", 0, 2, -1, 1, Q("2 mm")),
    Sketcher.Constraint("DistanceY", 0, 2, -1, 1, Q("17 mm")),
])
pocket11 = body.newObject("PartDesign::Pocket", "Pocket010")
pocket11.Profile = sketch14
pocket11.Length = 4
pocket11.Reversed = True

sketch15 = body.newObject("Sketcher::SketchObject", "Sketch014")
sketch15.AttachmentSupport = (doc.getObject("XZ_Plane"), [""])
sketch15.MapMode = "FlatFace"
sketch15.AttachmentOffset = App.Placement(V(0, 0, -7.5), App.Rotation())
sketch15.addGeometry(Part.Circle(V(0, -15, 0), V(0, 0, 1), 2), False)
sketch15.addConstraint([
    Sketcher.Constraint("PointOnObject", 0, 3, -2),
    Sketcher.Constraint("Diameter", 0, Q("4 mm")),
    Sketcher.Constraint("DistanceY", 0, 3, -1, 1, Q("15 mm")),
])
pocket12 = body.newObject("PartDesign::Pocket", "Pocket011")
pocket12.Profile = sketch15
pocket12.Type = "ThroughAll"
pocket12.Reversed = True

sketch16 = body.newObject("Sketcher::SketchObject", "Sketch015")
sketch16.AttachmentSupport = (doc.getObject("XZ_Plane"), [""])
sketch16.MapMode = "FlatFace"
sketch16.AttachmentOffset = App.Placement(V(0, 0, -7.5), App.Rotation())
sketch16.addGeometry([
    Part.LineSegment(V(2, -13, 0), V(2, -17, 0)),
    Part.LineSegment(V(2, -17, 0), V(-2, -17, 0)),
    Part.LineSegment(V(-2, -17, 0), V(-2, -13, 0)),
    Part.LineSegment(V(-2, -13, 0), V(2, -13, 0)),
], False)
sketch16.addConstraint([
    Sketcher.Constraint("Coincident", 0, 2, 1, 1),
    Sketcher.Constraint("Coincident", 1, 2, 2, 1),
    Sketcher.Constraint("Coincident", 2, 2, 3, 1),
    Sketcher.Constraint("Coincident", 3, 2, 0, 1),
    Sketcher.Constraint("Vertical", 0),
    Sketcher.Constraint("Horizontal", 1),
    Sketcher.Constraint("Vertical", 2),
    Sketcher.Constraint("Horizontal", 3),
    Sketcher.Constraint("Equal", 3, 0),
    Sketcher.Constraint("DistanceX", 1, 2, 1, 1, Q("4 mm")),
    Sketcher.Constraint("DistanceX", -1, 1, 0, 2, Q("2 mm")),
    Sketcher.Constraint("DistanceY", 0, 2, -1, 1, Q("17 mm")),
])
pocket13 = body.newObject("PartDesign::Pocket", "Pocket012")
pocket13.Profile = sketch16
pocket13.Length = 4
pocket13.Reversed = True

sketch17 = body.newObject("Sketcher::SketchObject", "Sketch016")
sketch17.AttachmentSupport = (doc.getObject("XZ_Plane"), [""])
sketch17.MapMode = "FlatFace"
sketch17.AttachmentOffset = App.Placement(V(0, 0, 7.5), App.Rotation())
sketch17.addGeometry([
    Part.LineSegment(V(-2, -13, 0), V(-2, -17, 0)),
    Part.LineSegment(V(-2, -17, 0), V(2, -17, 0)),
    Part.LineSegment(V(2, -17, 0), V(2, -13, 0)),
    Part.LineSegment(V(2, -13, 0), V(-2, -13, 0)),
], False)
sketch17.addConstraint([
    Sketcher.Constraint("Coincident", 0, 2, 1, 1),
    Sketcher.Constraint("Coincident", 1, 2, 2, 1),
    Sketcher.Constraint("Coincident", 2, 2, 3, 1),
    Sketcher.Constraint("Coincident", 3, 2, 0, 1),
    Sketcher.Constraint("Vertical", 0),
    Sketcher.Constraint("Horizontal", 1),
    Sketcher.Constraint("Vertical", 2),
    Sketcher.Constraint("Horizontal", 3),
    Sketcher.Constraint("Equal", 3, 0),
    Sketcher.Constraint("DistanceX", 1, 1, 1, 2, Q("4 mm")),
    Sketcher.Constraint("DistanceX", 0, 2, -1, 1, Q("2 mm")),
    Sketcher.Constraint("DistanceY", 0, 2, -1, 1, Q("17 mm")),
])
pocket14 = body.newObject("PartDesign::Pocket", "Pocket013")
pocket14.Profile = sketch17
pocket14.Length = 4

doc.recompute()
